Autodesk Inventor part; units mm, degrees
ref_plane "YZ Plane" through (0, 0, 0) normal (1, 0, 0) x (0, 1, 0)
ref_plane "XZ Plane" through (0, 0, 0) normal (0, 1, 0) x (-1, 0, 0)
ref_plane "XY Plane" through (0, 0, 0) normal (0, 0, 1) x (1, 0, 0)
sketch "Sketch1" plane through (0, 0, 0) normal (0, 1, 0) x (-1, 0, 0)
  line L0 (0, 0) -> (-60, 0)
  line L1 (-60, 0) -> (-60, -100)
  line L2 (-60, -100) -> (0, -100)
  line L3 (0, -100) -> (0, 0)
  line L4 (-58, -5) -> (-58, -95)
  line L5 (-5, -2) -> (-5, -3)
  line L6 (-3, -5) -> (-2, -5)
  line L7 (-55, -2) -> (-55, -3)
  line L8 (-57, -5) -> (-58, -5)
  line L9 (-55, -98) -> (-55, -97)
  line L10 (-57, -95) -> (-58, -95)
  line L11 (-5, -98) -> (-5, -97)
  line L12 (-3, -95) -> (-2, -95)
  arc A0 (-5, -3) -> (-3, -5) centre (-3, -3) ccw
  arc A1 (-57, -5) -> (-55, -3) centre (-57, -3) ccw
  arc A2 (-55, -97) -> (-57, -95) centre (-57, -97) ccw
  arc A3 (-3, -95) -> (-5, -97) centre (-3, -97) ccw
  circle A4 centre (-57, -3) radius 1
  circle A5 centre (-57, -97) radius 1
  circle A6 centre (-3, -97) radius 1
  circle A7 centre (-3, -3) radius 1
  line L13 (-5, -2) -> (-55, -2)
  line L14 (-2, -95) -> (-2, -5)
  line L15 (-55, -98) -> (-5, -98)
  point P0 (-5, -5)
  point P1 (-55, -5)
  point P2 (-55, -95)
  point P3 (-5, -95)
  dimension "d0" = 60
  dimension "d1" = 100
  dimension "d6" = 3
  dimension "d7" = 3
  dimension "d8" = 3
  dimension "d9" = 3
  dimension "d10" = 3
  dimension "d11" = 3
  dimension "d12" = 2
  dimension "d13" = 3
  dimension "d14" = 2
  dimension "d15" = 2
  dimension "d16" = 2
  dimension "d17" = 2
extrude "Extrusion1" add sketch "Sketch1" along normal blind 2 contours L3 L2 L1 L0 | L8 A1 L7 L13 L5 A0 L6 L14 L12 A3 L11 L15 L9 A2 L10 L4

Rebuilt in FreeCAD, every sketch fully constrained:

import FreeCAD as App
import Part
import Sketcher
Q = App.Units.Quantity


def add_polygon(sketch, points):
    """Adds a closed chain of lines whose ends are joined by coincident constraints."""
    first, n = sketch.GeometryCount, len(points)
    for a, b in zip(points, points[1:] + points[:1]):
        sketch.addGeometry(Part.LineSegment(App.Vector(*a, 0), App.Vector(*b, 0)), False)
    for i in range(n):
        sketch.addConstraint(Sketcher.Constraint("Coincident", first + i, 2, first + (i + 1) % n, 1))

doc = App.newDocument("Part")
body = doc.addObject("PartDesign::Body", "Body")

sketch1 = doc.addObject("Sketcher::SketchObject", "Sketch")
body.addObject(sketch1)
sketch1.AttachmentSupport = (doc.XZ_Plane, [""])
sketch1.MapMode = "FlatFace"
add_polygon(sketch1, [(0, -100), (0, 0), (60, 0), (60, -100)])
sketch1.addGeometry(Part.Circle(App.Vector(57, -97, 0), App.Vector(0, 0, 1), 1), False)
sketch1.addGeometry(Part.Circle(App.Vector(3, -97, 0), App.Vector(0, 0, 1), 1), False)
sketch1.addGeometry(Part.Circle(App.Vector(57, -3, 0), App.Vector(0, 0, 1), 1), False)
sketch1.addGeometry(Part.Circle(App.Vector(3, -3, 0), App.Vector(0, 0, 1), 1), False)
sketch1.addConstraint(Sketcher.Constraint("Vertical", 0))
sketch1.addConstraint(Sketcher.Constraint("Horizontal", 1))
sketch1.addConstraint(Sketcher.Constraint("Vertical", 2))
sketch1.addConstraint(Sketcher.Constraint("Horizontal", 3))
sketch1.addConstraint(Sketcher.Constraint("Coincident", 0, 2, -1, 1))
sketch1.addConstraint(Sketcher.Constraint("Equal", 4, 5))
sketch1.addConstraint(Sketcher.Constraint("Equal", 5, 6))
sketch1.addConstraint(Sketcher.Constraint("Equal", 6, 7))
sketch1.addConstraint(Sketcher.Constraint("Horizontal", 4, 3, 5, 3))
sketch1.addConstraint(Sketcher.Constraint("Horizontal", 6, 3, 7, 3))
sketch1.addConstraint(Sketcher.Constraint("Vertical", 4, 3, 6, 3))
sketch1.addConstraint(Sketcher.Constraint("Vertical", 5, 3, 7, 3))
sketch1.addConstraint(Sketcher.Constraint("Diameter", 4, Q("2 mm")))
sketch1.addConstraint(Sketcher.Constraint("DistanceX", 1, 1, 1, 2, Q("60 mm")))
sketch1.addConstraint(Sketcher.Constraint("DistanceY", 0, 1, 0, 2, Q("100 mm")))
sketch1.addConstraint(Sketcher.Constraint("DistanceX", -1, 1, 5, 3, Q("3 mm")))
sketch1.addConstraint(Sketcher.Constraint("DistanceY", 6, 3, -1, 1, Q("3 mm")))
sketch1.addConstraint(Sketcher.Constraint("DistanceX", 6, 3, 1, 2, Q("3 mm")))
sketch1.addConstraint(Sketcher.Constraint("DistanceY", 2, 2, 4, 3, Q("3 mm")))
pad1 = doc.addObject("PartDesign::Pad", "Pad")
body.addObject(pad1)
pad1.Profile = sketch1
pad1.Length = 2
pad1.Reversed = True

doc.recompute()
